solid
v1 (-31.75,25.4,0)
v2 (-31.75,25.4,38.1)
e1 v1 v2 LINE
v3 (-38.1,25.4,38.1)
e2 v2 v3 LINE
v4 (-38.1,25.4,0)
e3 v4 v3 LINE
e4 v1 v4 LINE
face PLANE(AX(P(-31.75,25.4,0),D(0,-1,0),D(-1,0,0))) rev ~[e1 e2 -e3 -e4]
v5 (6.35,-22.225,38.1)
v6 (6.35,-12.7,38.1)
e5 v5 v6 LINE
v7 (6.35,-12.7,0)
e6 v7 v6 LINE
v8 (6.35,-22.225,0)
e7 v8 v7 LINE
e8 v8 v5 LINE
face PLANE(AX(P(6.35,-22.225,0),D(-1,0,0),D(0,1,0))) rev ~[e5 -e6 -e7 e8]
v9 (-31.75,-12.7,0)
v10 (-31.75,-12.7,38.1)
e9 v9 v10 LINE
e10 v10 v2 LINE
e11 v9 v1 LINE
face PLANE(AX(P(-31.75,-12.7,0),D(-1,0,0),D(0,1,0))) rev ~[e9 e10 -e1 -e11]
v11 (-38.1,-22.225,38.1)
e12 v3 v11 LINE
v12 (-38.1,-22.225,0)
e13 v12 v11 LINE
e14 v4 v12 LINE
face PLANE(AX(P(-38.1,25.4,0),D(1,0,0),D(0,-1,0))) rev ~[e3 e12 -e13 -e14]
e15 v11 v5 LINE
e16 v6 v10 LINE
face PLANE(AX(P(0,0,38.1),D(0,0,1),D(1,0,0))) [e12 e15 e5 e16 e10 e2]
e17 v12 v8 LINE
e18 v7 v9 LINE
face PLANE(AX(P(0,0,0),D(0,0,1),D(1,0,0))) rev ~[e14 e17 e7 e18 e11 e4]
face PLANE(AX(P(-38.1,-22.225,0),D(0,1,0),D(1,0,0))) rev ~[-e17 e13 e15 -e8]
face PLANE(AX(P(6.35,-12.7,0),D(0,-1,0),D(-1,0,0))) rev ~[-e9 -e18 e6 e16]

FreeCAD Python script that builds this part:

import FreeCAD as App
import Part
import Sketcher
Q = App.Units.Quantity

doc = App.newDocument("Part")
params = doc.addObject("Spreadsheet::Sheet", "Params")
for row, (alias, value) in enumerate([
    ("sketch1_width", "1.5 in"),
    ("sketch1_width2", "0.25 in"),
    ("sketch1_height", "1.875 in"),
    ("pad1_length", "1.5 in"),
], start=1):
    params.set(f"A{row}", alias)
    params.set(f"B{row}", "=" + value)
    params.setAlias(f"B{row}", alias)

body = doc.addObject("PartDesign::Body", "Body")

sketch1 = body.newObject("Sketcher::SketchObject", "Sketch")
sketch1.AttachmentSupport = (doc.getObject("XY_Plane"), [""])
sketch1.MapMode = "FlatFace"
sketch1.addGeometry([
    Part.LineSegment(App.Vector(-32, 25, 0), App.Vector(-38, 25, 0)),
    Part.LineSegment(App.Vector(-38, 25, 0), App.Vector(-38, -22, 0)),
    Part.LineSegment(App.Vector(-38, -22, 0), App.Vector(6, -22, 0)),
    Part.LineSegment(App.Vector(6, -22, 0), App.Vector(6, -13, 0)),
    Part.LineSegment(App.Vector(6, -13, 0), App.Vector(-32, -13, 0)),
    Part.LineSegment(App.Vector(-32, -13, 0), App.Vector(-32, 25, 0)),
], False)
sketch1.addConstraint([
    Sketcher.Constraint("Coincident", 0, 2, 1, 1),
    Sketcher.Constraint("Coincident", 1, 2, 2, 1),
    Sketcher.Constraint("Coincident", 2, 2, 3, 1),
    Sketcher.Constraint("Coincident", 3, 2, 4, 1),
    Sketcher.Constraint("Coincident", 4, 2, 5, 1),
    Sketcher.Constraint("Coincident", 5, 2, 0, 1),
    Sketcher.Constraint("Horizontal", 0),
    Sketcher.Constraint("Vertical", 1),
    Sketcher.Constraint("Horizontal", 2),
    Sketcher.Constraint("Vertical", 3),
    Sketcher.Constraint("Horizontal", 4),
    Sketcher.Constraint("Vertical", 5),
    Sketcher.Constraint("Equal", 4, 5),
    Sketcher.Constraint("DistanceX", 4, 2, 4, 1, Q("1.5 in")),
    Sketcher.Constraint("DistanceY", -1, 1, 0, 2, Q("1 in")),
    Sketcher.Constraint("DistanceX", 0, 2, 0, 1, Q("0.25 in")),
    Sketcher.Constraint("DistanceX", 0, 2, -1, 1, Q("1.5 in")),
    Sketcher.Constraint("DistanceY", 1, 2, 1, 1, Q("1.875 in")),
])
sketch1.setExpression("Constraints[13]", "Params.sketch1_width")
sketch1.setExpression("Constraints[15]", "Params.sketch1_width2")
sketch1.setExpression("Constraints[17]", "Params.sketch1_height")
pad1 = body.newObject("PartDesign::Pad", "Pad")
pad1.Profile = sketch1
pad1.setExpression("Length", "Params.pad1_length")

doc.recompute()
